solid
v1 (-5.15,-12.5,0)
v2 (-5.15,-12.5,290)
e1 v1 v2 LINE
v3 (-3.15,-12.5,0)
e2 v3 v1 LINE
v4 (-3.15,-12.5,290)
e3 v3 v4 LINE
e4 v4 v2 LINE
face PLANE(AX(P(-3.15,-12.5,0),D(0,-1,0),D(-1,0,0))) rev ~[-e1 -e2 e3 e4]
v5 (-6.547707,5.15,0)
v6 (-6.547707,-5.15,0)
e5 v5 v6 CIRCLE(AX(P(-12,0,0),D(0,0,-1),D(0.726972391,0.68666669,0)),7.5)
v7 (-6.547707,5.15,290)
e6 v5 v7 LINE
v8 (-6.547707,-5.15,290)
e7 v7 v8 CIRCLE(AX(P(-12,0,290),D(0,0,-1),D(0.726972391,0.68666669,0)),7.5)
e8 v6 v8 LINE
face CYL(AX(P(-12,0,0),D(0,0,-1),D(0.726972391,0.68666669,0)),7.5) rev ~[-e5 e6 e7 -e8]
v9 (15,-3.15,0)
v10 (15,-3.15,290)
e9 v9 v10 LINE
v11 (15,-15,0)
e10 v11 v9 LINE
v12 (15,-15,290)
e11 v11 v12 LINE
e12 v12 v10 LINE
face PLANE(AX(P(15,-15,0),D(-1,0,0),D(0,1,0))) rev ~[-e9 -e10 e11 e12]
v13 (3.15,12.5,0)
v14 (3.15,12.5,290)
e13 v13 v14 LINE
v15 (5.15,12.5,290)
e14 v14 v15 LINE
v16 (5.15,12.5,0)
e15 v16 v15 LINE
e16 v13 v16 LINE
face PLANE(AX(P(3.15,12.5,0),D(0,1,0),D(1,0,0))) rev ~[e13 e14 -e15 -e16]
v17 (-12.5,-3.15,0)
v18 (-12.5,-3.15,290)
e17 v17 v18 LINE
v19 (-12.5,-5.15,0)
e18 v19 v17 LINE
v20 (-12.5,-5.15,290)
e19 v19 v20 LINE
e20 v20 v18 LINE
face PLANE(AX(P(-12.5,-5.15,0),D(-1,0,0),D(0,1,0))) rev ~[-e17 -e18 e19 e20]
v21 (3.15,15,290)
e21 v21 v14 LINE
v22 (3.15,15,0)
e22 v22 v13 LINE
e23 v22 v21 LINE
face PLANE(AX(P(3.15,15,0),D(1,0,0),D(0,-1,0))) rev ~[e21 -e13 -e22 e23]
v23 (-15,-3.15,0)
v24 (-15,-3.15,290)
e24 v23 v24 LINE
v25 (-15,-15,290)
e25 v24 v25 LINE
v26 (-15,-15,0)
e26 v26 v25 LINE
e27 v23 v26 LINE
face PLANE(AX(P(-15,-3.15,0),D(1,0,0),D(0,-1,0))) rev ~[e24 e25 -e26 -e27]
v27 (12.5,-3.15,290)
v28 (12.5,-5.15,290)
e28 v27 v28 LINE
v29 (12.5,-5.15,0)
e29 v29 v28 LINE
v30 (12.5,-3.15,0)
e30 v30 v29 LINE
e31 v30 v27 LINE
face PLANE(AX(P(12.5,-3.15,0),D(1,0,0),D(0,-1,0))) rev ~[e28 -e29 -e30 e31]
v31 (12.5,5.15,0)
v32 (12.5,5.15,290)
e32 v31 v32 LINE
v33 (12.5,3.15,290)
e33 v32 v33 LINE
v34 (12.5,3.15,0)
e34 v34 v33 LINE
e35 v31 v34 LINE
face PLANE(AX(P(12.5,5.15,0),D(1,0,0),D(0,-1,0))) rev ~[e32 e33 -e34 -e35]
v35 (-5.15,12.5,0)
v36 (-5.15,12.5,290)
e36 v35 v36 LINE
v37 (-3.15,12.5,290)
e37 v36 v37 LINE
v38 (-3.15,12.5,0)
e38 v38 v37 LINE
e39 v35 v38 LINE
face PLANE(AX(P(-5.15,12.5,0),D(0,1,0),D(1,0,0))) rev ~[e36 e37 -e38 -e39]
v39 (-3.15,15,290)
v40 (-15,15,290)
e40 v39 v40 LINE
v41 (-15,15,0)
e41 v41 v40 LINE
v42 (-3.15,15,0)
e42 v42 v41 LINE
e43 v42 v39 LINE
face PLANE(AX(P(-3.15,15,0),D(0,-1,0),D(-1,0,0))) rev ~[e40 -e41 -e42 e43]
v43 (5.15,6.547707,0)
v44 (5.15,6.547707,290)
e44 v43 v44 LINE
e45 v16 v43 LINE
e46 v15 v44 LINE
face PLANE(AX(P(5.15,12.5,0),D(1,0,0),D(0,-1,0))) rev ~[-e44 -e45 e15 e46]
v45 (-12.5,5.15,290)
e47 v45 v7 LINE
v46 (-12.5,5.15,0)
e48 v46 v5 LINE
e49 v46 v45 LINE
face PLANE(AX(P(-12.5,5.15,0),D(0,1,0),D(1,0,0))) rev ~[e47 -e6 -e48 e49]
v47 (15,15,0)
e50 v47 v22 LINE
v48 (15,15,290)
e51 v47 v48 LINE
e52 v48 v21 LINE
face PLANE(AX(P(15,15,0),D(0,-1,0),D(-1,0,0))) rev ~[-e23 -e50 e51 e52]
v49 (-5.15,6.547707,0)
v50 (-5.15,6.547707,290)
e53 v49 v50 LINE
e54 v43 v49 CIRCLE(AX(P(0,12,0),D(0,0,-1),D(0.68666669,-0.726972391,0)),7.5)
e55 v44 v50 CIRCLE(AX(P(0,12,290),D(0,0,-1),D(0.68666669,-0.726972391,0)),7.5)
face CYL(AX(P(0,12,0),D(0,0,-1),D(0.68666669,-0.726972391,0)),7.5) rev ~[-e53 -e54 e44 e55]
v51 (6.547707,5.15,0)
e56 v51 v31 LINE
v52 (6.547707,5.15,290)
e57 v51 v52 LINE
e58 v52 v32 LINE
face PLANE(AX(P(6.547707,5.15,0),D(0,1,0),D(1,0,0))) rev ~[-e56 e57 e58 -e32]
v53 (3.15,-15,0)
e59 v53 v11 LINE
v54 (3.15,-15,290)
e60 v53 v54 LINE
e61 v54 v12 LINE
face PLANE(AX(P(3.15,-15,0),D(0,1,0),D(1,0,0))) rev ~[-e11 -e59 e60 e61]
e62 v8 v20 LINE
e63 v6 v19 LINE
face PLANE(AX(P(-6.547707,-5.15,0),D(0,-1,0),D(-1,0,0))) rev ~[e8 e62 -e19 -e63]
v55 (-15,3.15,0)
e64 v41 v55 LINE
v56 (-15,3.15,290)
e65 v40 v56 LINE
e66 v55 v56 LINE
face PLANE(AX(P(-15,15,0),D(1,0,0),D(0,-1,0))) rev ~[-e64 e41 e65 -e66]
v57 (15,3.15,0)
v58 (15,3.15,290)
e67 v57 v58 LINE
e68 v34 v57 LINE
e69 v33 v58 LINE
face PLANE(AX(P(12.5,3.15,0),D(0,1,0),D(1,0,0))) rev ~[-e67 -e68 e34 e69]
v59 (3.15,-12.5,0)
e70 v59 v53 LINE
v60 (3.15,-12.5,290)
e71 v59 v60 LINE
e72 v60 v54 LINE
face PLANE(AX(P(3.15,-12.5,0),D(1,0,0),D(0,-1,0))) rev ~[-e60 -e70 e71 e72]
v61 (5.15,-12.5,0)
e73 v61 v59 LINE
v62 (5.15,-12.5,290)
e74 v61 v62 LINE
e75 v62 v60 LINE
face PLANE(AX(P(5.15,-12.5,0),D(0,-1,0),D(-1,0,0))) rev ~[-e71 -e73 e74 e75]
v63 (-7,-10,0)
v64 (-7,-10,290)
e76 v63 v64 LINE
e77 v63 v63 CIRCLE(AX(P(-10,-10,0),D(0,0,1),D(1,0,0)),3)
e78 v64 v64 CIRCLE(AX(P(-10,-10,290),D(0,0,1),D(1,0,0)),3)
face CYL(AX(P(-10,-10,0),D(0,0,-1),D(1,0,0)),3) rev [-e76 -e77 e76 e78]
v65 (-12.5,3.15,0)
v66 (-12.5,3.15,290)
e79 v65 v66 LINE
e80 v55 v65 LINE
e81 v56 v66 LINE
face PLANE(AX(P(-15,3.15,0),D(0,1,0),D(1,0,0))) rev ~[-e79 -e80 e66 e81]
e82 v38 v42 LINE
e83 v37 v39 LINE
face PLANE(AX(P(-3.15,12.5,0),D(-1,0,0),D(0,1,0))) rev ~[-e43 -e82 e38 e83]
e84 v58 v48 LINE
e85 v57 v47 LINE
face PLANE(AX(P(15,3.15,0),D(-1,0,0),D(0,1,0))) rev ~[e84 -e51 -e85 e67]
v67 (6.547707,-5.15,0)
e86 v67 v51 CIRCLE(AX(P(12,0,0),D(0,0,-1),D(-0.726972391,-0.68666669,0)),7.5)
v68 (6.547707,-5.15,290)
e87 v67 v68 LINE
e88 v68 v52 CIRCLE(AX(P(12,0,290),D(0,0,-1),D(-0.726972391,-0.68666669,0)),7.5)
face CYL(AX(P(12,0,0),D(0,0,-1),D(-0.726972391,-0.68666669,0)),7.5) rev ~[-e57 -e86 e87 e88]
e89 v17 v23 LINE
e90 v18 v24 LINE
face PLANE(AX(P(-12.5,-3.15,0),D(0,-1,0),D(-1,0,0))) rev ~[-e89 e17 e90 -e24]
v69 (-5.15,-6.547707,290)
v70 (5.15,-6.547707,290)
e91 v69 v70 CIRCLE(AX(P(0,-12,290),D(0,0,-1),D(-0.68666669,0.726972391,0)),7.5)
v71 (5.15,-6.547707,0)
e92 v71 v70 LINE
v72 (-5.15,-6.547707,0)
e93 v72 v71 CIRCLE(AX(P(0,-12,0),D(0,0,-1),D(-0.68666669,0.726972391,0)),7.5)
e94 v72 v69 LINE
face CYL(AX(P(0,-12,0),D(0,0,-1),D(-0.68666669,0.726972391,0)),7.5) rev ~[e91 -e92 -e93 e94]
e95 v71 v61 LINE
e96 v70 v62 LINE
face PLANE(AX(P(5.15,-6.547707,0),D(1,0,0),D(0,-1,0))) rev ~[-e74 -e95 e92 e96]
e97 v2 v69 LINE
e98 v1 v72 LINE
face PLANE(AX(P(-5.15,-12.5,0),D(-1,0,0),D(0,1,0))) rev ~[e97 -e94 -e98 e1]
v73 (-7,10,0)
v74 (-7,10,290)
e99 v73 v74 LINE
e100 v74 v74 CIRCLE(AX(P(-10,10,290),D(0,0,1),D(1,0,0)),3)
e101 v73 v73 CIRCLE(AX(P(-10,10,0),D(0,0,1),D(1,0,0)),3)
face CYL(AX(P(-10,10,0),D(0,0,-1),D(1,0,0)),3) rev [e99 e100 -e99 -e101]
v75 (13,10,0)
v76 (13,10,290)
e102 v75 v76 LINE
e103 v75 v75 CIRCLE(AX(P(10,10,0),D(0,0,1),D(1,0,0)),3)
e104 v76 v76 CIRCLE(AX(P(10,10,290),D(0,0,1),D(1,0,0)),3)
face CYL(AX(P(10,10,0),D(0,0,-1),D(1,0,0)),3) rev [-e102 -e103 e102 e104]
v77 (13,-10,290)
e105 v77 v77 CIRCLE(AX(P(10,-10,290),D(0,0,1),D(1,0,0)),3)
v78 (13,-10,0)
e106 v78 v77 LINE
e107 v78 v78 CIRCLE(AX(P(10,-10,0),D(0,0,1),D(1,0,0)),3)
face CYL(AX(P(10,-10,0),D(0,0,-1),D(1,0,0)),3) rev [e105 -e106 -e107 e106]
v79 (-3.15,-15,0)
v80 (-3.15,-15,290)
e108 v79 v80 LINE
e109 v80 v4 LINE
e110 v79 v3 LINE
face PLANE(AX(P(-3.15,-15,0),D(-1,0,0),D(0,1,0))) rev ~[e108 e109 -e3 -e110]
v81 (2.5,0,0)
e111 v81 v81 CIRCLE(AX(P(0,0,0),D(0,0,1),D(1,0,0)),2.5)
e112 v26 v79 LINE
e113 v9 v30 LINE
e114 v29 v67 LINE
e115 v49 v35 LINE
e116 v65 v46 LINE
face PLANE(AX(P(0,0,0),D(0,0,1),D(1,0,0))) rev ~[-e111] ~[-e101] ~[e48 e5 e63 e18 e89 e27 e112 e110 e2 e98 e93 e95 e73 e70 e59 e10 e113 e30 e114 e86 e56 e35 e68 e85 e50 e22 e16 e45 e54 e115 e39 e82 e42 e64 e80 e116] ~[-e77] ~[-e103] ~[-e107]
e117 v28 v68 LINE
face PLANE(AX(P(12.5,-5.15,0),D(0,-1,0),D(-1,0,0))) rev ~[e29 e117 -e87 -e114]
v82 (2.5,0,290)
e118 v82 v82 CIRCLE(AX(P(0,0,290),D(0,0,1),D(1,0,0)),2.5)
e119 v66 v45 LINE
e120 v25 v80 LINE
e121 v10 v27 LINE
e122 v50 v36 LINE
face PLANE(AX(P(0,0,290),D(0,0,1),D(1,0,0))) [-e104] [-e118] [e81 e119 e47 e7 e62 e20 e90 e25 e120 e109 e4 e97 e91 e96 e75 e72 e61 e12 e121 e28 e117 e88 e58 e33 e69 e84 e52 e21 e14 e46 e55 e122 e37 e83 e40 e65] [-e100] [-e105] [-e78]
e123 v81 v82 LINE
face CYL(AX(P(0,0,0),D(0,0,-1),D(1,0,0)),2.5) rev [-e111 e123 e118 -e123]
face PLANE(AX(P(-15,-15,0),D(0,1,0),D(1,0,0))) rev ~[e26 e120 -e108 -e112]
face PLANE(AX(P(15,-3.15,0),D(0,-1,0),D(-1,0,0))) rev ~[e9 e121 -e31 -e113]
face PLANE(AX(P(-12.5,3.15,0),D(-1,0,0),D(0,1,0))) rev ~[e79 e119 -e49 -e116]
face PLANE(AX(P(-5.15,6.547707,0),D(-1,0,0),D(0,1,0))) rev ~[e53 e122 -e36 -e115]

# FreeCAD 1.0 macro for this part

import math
import FreeCAD as App
import Part
import Sketcher
from FreeCAD import Vector
Q = App.Units.Quantity

doc = App.newDocument("Part")
body = doc.addObject("PartDesign::Body", "Body")

sketch1 = body.newObject("Sketcher::SketchObject", "Sketch")
sketch1.AttachmentSupport = (doc.getObject("XY_Plane"), [""])
sketch1.MapMode = "FlatFace"
sketch1.addGeometry([
    Part.LineSegment(Vector(-15, 15, 0), Vector(-15, 3.15, 0)),
    Part.LineSegment(Vector(-15, 3.15, 0), Vector(-12.5, 3.15, 0)),
    Part.LineSegment(Vector(-12.5, 3.15, 0), Vector(-12.5, 5.15, 0)),
    Part.LineSegment(Vector(-12.5, 5.15, 0), Vector(-6.547707, 5.15, 0)),
    Part.ArcOfCircle(Part.Circle(Vector(-12, 0, 0), Vector(0, 0, 1), 7.5), math.radians(-43.366824), math.radians(43.366824)),
    Part.LineSegment(Vector(-6.547707, -5.15, 0), Vector(-12.5, -5.15, 0)),
    Part.LineSegment(Vector(-12.5, -5.15, 0), Vector(-12.5, -3.15, 0)),
    Part.LineSegment(Vector(-12.5, -3.15, 0), Vector(-15, -3.15, 0)),
    Part.LineSegment(Vector(-15, -3.15, 0), Vector(-15, -15, 0)),
    Part.LineSegment(Vector(-15, -15, 0), Vector(-3.15, -15, 0)),
    Part.LineSegment(Vector(-3.15, -15, 0), Vector(-3.15, -12.5, 0)),
    Part.LineSegment(Vector(-3.15, -12.5, 0), Vector(-5.15, -12.5, 0)),
    Part.LineSegment(Vector(-5.15, -12.5, 0), Vector(-5.15, -6.547707, 0)),
    Part.ArcOfCircle(Part.Circle(Vector(0, -12, 0), Vector(0, 0, 1), 7.5), math.radians(46.633176), math.radians(133.366824)),
    Part.LineSegment(Vector(5.15, -6.547707, 0), Vector(5.15, -12.5, 0)),
    Part.LineSegment(Vector(5.15, -12.5, 0), Vector(3.15, -12.5, 0)),
    Part.LineSegment(Vector(3.15, -12.5, 0), Vector(3.15, -15, 0)),
    Part.LineSegment(Vector(3.15, -15, 0), Vector(15, -15, 0)),
    Part.LineSegment(Vector(15, -15, 0), Vector(15, -3.15, 0)),
    Part.LineSegment(Vector(15, -3.15, 0), Vector(12.5, -3.15, 0)),
    Part.LineSegment(Vector(12.5, -3.15, 0), Vector(12.5, -5.15, 0)),
    Part.LineSegment(Vector(12.5, -5.15, 0), Vector(6.547707, -5.15, 0)),
    Part.ArcOfCircle(Part.Circle(Vector(12, 0, 0), Vector(0, 0, 1), 7.5), math.radians(136.633176), math.radians(223.366824)),
    Part.LineSegment(Vector(6.547707, 5.15, 0), Vector(12.5, 5.15, 0)),
    Part.LineSegment(Vector(12.5, 5.15, 0), Vector(12.5, 3.15, 0)),
    Part.LineSegment(Vector(12.5, 3.15, 0), Vector(15, 3.15, 0)),
    Part.LineSegment(Vector(15, 3.15, 0), Vector(15, 15, 0)),
    Part.LineSegment(Vector(15, 15, 0), Vector(3.15, 15, 0)),
    Part.LineSegment(Vector(3.15, 15, 0), Vector(3.15, 12.5, 0)),
    Part.LineSegment(Vector(3.15, 12.5, 0), Vector(5.15, 12.5, 0)),
    Part.LineSegment(Vector(5.15, 12.5, 0), Vector(5.15, 6.547707, 0)),
    Part.ArcOfCircle(Part.Circle(Vector(0, 12, 0), Vector(0, 0, 1), 7.5), math.radians(-133.366824), math.radians(-46.633176)),
    Part.LineSegment(Vector(-5.15, 6.547707, 0), Vector(-5.15, 12.5, 0)),
    Part.LineSegment(Vector(-5.15, 12.5, 0), Vector(-3.15, 12.5, 0)),
    Part.LineSegment(Vector(-3.15, 12.5, 0), Vector(-3.15, 15, 0)),
    Part.LineSegment(Vector(-3.15, 15, 0), Vector(-15, 15, 0)),
    Part.Circle(Vector(-10, -10, 0), Vector(0, 0, 1), 3),
    Part.Circle(Vector(10, -10, 0), Vector(0, 0, 1), 3),
    Part.Circle(Vector(-10, 10, 0), Vector(0, 0, 1), 3),
    Part.Circle(Vector(0, 0, 0), Vector(0, 0, 1), 2.5),
    Part.Circle(Vector(10, 10, 0), Vector(0, 0, 1), 3),
], False)
sketch1.addConstraint([
    Sketcher.Constraint("Coincident", 0, 2, 1, 1),
    Sketcher.Constraint("Coincident", 1, 2, 2, 1),
    Sketcher.Constraint("Coincident", 2, 2, 3, 1),
    Sketcher.Constraint("Coincident", 3, 2, 4, 2),
    Sketcher.Constraint("Coincident", 4, 1, 5, 1),
    Sketcher.Constraint("Coincident", 5, 2, 6, 1),
    Sketcher.Constraint("Coincident", 6, 2, 7, 1),
    Sketcher.Constraint("Coincident", 7, 2, 8, 1),
    Sketcher.Constraint("Coincident", 8, 2, 9, 1),
    Sketcher.Constraint("Coincident", 9, 2, 10, 1),
    Sketcher.Constraint("Coincident", 10, 2, 11, 1),
    Sketcher.Constraint("Coincident", 11, 2, 12, 1),
    Sketcher.Constraint("Coincident", 12, 2, 13, 2),
    Sketcher.Constraint("Coincident", 13, 1, 14, 1),
    Sketcher.Constraint("Coincident", 14, 2, 15, 1),
    Sketcher.Constraint("Coincident", 15, 2, 16, 1),
    Sketcher.Constraint("Coincident", 16, 2, 17, 1),
    Sketcher.Constraint("Coincident", 17, 2, 18, 1),
    Sketcher.Constraint("Coincident", 18, 2, 19, 1),
    Sketcher.Constraint("Coincident", 19, 2, 20, 1),
    Sketcher.Constraint("Coincident", 20, 2, 21, 1),
    Sketcher.Constraint("Coincident", 21, 2, 22, 2),
    Sketcher.Constraint("Coincident", 22, 1, 23, 1),
    Sketcher.Constraint("Coincident", 23, 2, 24, 1),
    Sketcher.Constraint("Coincident", 24, 2, 25, 1),
    Sketcher.Constraint("Coincident", 25, 2, 26, 1),
    Sketcher.Constraint("Coincident", 26, 2, 27, 1),
    Sketcher.Constraint("Coincident", 27, 2, 28, 1),
    Sketcher.Constraint("Coincident", 28, 2, 29, 1),
    Sketcher.Constraint("Coincident", 29, 2, 30, 1),
    Sketcher.Constraint("Coincident", 30, 2, 31, 2),
    Sketcher.Constraint("Coincident", 31, 1, 32, 1),
    Sketcher.Constraint("Coincident", 32, 2, 33, 1),
    Sketcher.Constraint("Coincident", 33, 2, 34, 1),
    Sketcher.Constraint("Coincident", 34, 2, 35, 1),
    Sketcher.Constraint("Coincident", 35, 2, 0, 1),
    Sketcher.Constraint("Vertical", 0),
    Sketcher.Constraint("Horizontal", 1),
    Sketcher.Constraint("Vertical", 2),
    Sketcher.Constraint("Horizontal", 3),
    Sketcher.Constraint("Horizontal", 5),
    Sketcher.Constraint("Vertical", 6),
    Sketcher.Constraint("Horizontal", 7),
    Sketcher.Constraint("Vertical", 8),
    Sketcher.Constraint("Horizontal", 9),
    Sketcher.Constraint("Vertical", 10),
    Sketcher.Constraint("Horizontal", 11),
    Sketcher.Constraint("Vertical", 12),
    Sketcher.Constraint("Vertical", 14),
    Sketcher.Constraint("Horizontal", 15),
    Sketcher.Constraint("Vertical", 16),
    Sketcher.Constraint("Horizontal", 17),
    Sketcher.Constraint("Vertical", 18),
    Sketcher.Constraint("Horizontal", 19),
    Sketcher.Constraint("Vertical", 20),
    Sketcher.Constraint("Horizontal", 21),
    Sketcher.Constraint("Horizontal", 23),
    Sketcher.Constraint("Vertical", 24),
    Sketcher.Constraint("Horizontal", 25),
    Sketcher.Constraint("Vertical", 26),
    Sketcher.Constraint("Horizontal", 27),
    Sketcher.Constraint("Vertical", 28),
    Sketcher.Constraint("Horizontal", 29),
    Sketcher.Constraint("Vertical", 30),
    Sketcher.Constraint("Vertical", 32),
    Sketcher.Constraint("Horizontal", 33),
    Sketcher.Constraint("Vertical", 34),
    Sketcher.Constraint("Horizontal", 35),
    Sketcher.Constraint("Coincident", 39, 3, -1, 1),
    Sketcher.Constraint("Equal", 4, 13),
    Sketcher.Constraint("Equal", 13, 22),
    Sketcher.Constraint("Equal", 22, 31),
    Sketcher.Constraint("Equal", 36, 37),
    Sketcher.Constraint("Equal", 37, 38),
    Sketcher.Constraint("Equal", 38, 40),
    Sketcher.Constraint("Symmetric", 4, 3, 22, 3, -1, 1),
    Sketcher.Constraint("Symmetric", 13, 3, 31, 3, -1, 1),
    Sketcher.Constraint("Symmetric", 37, 3, 38, 3, -1, 1),
    Sketcher.Constraint("Symmetric", 36, 3, 40, 3, -1, 1),
    Sketcher.Constraint("Symmetric", 0, 2, 18, 2, -1, 1),
    Sketcher.Constraint("Symmetric", 2, 2, 20, 2, -1, 1),
    Sketcher.Constraint("Symmetric", 5, 2, 23, 2, -1, 1),
    Sketcher.Constraint("Symmetric", 7, 2, 25, 2, -1, 1),
    Sketcher.Constraint("Symmetric", 9, 2, 27, 2, -1, 1),
    Sketcher.Constraint("Symmetric", 11, 2, 29, 2, -1, 1),
    Sketcher.Constraint("Symmetric", 14, 2, 32, 2, -1, 1),
    Sketcher.Constraint("Symmetric", 16, 2, 34, 2, -1, 1),
    Sketcher.Constraint("Symmetric", 36, 3, 37, 3, -2),
    Sketcher.Constraint("Symmetric", 12, 2, 13, 1, -2),
    Sketcher.Constraint("Symmetric", 10, 2, 15, 2, -2),
    Sketcher.Constraint("Symmetric", 8, 2, 17, 2, -2),
    Sketcher.Constraint("Symmetric", 6, 2, 19, 2, -2),
    Sketcher.Constraint("Symmetric", 4, 1, 21, 2, -2),
    Sketcher.Constraint("Equal", 35, 0),
    Sketcher.Constraint("Equal", 33, 2),
    Sketcher.Constraint("Equal", 25, 10),
    Sketcher.Constraint("Equal", 23, 12),
    Sketcher.Constraint("Diameter", 36, Q("6 mm")),
    Sketcher.Constraint("Diameter", 39, Q("5 mm")),
    Sketcher.Constraint("Radius", 4, Q("7.5 mm")),
    Sketcher.Constraint("DistanceX", 11, 2, 11, 1, Q("2 mm")),
    Sketcher.Constraint("DistanceX", 1, 1, 1, 2, Q("2.5 mm")),
    Sketcher.Constraint("DistanceX", 4, 3, -1, 1, Q("12 mm")),
    Sketcher.Constraint("DistanceY", 13, 3, -1, 1, Q("12 mm")),
    Sketcher.Constraint("DistanceX", 36, 3, -1, 1, Q("10 mm")),
    Sketcher.Constraint("DistanceY", 36, 3, -1, 1, Q("10 mm")),
    Sketcher.Constraint("DistanceX", 0, 2, -1, 1, Q("15 mm")),
    Sketcher.Constraint("DistanceX", 9, 1, 9, 2, Q("11.85 mm")),
])
pad1 = body.newObject("PartDesign::Pad", "Pad")
pad1.Profile = sketch1
pad1.Length = 290

doc.recompute()
